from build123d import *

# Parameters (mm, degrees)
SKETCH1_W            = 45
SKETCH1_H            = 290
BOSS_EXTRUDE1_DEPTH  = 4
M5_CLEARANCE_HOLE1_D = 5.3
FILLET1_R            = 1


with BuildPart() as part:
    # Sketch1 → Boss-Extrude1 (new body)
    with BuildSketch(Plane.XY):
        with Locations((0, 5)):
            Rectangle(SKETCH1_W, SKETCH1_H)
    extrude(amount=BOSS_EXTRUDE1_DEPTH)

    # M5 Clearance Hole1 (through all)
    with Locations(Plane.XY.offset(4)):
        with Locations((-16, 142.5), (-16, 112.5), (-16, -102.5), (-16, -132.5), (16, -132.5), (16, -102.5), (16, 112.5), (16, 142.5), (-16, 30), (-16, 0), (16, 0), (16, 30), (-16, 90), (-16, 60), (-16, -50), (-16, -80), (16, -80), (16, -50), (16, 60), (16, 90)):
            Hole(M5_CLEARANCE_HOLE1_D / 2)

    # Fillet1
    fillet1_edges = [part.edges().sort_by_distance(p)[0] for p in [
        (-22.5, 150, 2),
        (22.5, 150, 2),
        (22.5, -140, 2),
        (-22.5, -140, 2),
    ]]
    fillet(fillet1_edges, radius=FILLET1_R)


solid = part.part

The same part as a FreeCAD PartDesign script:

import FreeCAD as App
import Part
import Sketcher
Q = App.Units.Quantity


def edges_at(feature, points):
    """Names of the edges that pass closest to the given points."""
    edges = feature.Shape.Edges
    near = lambda p: min(range(len(edges)), key=lambda i: edges[i].distToShape(Part.Vertex(*p))[0])
    return sorted({f"Edge{near(p) + 1}" for p in points})


def add_polygon(sketch, points):
    """Adds a closed chain of lines whose ends are joined by coincident constraints."""
    first, n = sketch.GeometryCount, len(points)
    for a, b in zip(points, points[1:] + points[:1]):
        sketch.addGeometry(Part.LineSegment(App.Vector(*a, 0), App.Vector(*b, 0)), False)
    for i in range(n):
        sketch.addConstraint(Sketcher.Constraint("Coincident", first + i, 2, first + (i + 1) % n, 1))

doc = App.newDocument("Part")
body = doc.addObject("PartDesign::Body", "Body")

sketch1 = doc.addObject("Sketcher::SketchObject", "Sketch")
body.addObject(sketch1)
sketch1.AttachmentSupport = (doc.XY_Plane, [""])
sketch1.MapMode = "FlatFace"
add_polygon(sketch1, [(-22, 150), (-22, -140), (22, -140), (22, 150)])
sketch1.addConstraint([
    Sketcher.Constraint("Vertical", 0),
    Sketcher.Constraint("Horizontal", 1),
    Sketcher.Constraint("Vertical", 2),
    Sketcher.Constraint("Horizontal", 3),
    Sketcher.Constraint("DistanceX", 1, 1, 1, 2, Q("45 mm")),
    Sketcher.Constraint("DistanceY", 0, 2, 0, 1, Q("290 mm")),
    Sketcher.Constraint("DistanceY", 0, 2, -1, 1, Q("140 mm")),
    Sketcher.Constraint("DistanceX", 0, 2, -1, 1, Q("22.5 mm")),
])
pad1 = doc.addObject("PartDesign::Pad", "Pad")
body.addObject(pad1)
pad1.Profile = sketch1
pad1.Length = 4

sketch2 = doc.addObject("Sketcher::SketchObject", "Sketch001")
body.addObject(sketch2)
sketch2.AttachmentSupport = (doc.XY_Plane, [""])
sketch2.MapMode = "FlatFace"
sketch2.AttachmentOffset = App.Placement(App.Vector(0, 0, 4), App.Rotation())
sketch2.addGeometry([
    Part.Circle(App.Vector(-16, 142.5, 0), App.Vector(0, 0, 1), 2.6),
    Part.Circle(App.Vector(-16, 112.5, 0), App.Vector(0, 0, 1), 2.6),
    Part.Circle(App.Vector(-16, -102.5, 0), App.Vector(0, 0, 1), 2.6),
    Part.Circle(App.Vector(-16, -132.5, 0), App.Vector(0, 0, 1), 2.6),
    Part.Circle(App.Vector(16, -132.5, 0), App.Vector(0, 0, 1), 2.6),
    Part.Circle(App.Vector(16, -102.5, 0), App.Vector(0, 0, 1), 2.6),
    Part.Circle(App.Vector(16, 112.5, 0), App.Vector(0, 0, 1), 2.6),
    Part.Circle(App.Vector(16, 142.5, 0), App.Vector(0, 0, 1), 2.6),
    Part.Circle(App.Vector(-16, 30, 0), App.Vector(0, 0, 1), 2.6),
    Part.Circle(App.Vector(-16, 0, 0), App.Vector(0, 0, 1), 2.6),
    Part.Circle(App.Vector(16, 0, 0), App.Vector(0, 0, 1), 2.6),
    Part.Circle(App.Vector(16, 30, 0), App.Vector(0, 0, 1), 2.6),
    Part.Circle(App.Vector(-16, 90, 0), App.Vector(0, 0, 1), 2.6),
    Part.Circle(App.Vector(-16, 60, 0), App.Vector(0, 0, 1), 2.6),
    Part.Circle(App.Vector(-16, -50, 0), App.Vector(0, 0, 1), 2.6),
    Part.Circle(App.Vector(-16, -80, 0), App.Vector(0, 0, 1), 2.6),
    Part.Circle(App.Vector(16, -80, 0), App.Vector(0, 0, 1), 2.6),
    Part.Circle(App.Vector(16, -50, 0), App.Vector(0, 0, 1), 2.6),
    Part.Circle(App.Vector(16, 60, 0), App.Vector(0, 0, 1), 2.6),
    Part.Circle(App.Vector(16, 90, 0), App.Vector(0, 0, 1), 2.6),
], False)
sketch2.addConstraint([
    Sketcher.Constraint("Equal", 0, 1),
    Sketcher.Constraint("Equal", 1, 2),
    Sketcher.Constraint("Equal", 2, 3),
    Sketcher.Constraint("Equal", 3, 4),
    Sketcher.Constraint("Equal", 4, 5),
    Sketcher.Constraint("Equal", 5, 6),
    Sketcher.Constraint("Equal", 6, 7),
    Sketcher.Constraint("Equal", 7, 8),
    Sketcher.Constraint("Equal", 8, 9),
    Sketcher.Constraint("Equal", 9, 10),
    Sketcher.Constraint("Equal", 10, 11),
    Sketcher.Constraint("Equal", 11, 12),
    Sketcher.Constraint("Equal", 12, 13),
    Sketcher.Constraint("Equal", 13, 14),
    Sketcher.Constraint("Equal", 14, 15),
    Sketcher.Constraint("Equal", 15, 16),
    Sketcher.Constraint("Equal", 16, 17),
    Sketcher.Constraint("Equal", 17, 18),
    Sketcher.Constraint("Equal", 18, 19),
    Sketcher.Constraint("Symmetric", 9, 3, 10, 3, -1, 1),
    Sketcher.Constraint("Symmetric", 3, 3, 4, 3, -2),
    Sketcher.Constraint("Symmetric", 2, 3, 5, 3, -2),
    Sketcher.Constraint("Symmetric", 1, 3, 6, 3, -2),
    Sketcher.Constraint("Symmetric", 0, 3, 7, 3, -2),
    Sketcher.Constraint("Symmetric", 8, 3, 11, 3, -2),
    Sketcher.Constraint("Symmetric", 15, 3, 16, 3, -2),
    Sketcher.Constraint("Symmetric", 14, 3, 17, 3, -2),
    Sketcher.Constraint("Symmetric", 13, 3, 18, 3, -2),
    Sketcher.Constraint("Symmetric", 12, 3, 19, 3, -2),
    Sketcher.Constraint("PointOnObject", 9, 3, -1),
    Sketcher.Constraint("Vertical", 0, 3, 1, 3),
    Sketcher.Constraint("Vertical", 1, 3, 2, 3),
    Sketcher.Constraint("Vertical", 2, 3, 3, 3),
    Sketcher.Constraint("Vertical", 3, 3, 8, 3),
    Sketcher.Constraint("Vertical", 8, 3, 9, 3),
    Sketcher.Constraint("Vertical", 9, 3, 12, 3),
    Sketcher.Constraint("Vertical", 12, 3, 13, 3),
    Sketcher.Constraint("Vertical", 13, 3, 14, 3),
    Sketcher.Constraint("Vertical", 14, 3, 15, 3),
    Sketcher.Constraint("Diameter", 0, Q("5.3 mm")),
    Sketcher.Constraint("DistanceX", 0, 3, -1, 1, Q("16 mm")),
    Sketcher.Constraint("DistanceY", -1, 1, 8, 3, Q("30 mm")),
    Sketcher.Constraint("DistanceY", -1, 1, 12, 3, Q("90 mm")),
    Sketcher.Constraint("DistanceY", -1, 1, 13, 3, Q("60 mm")),
    Sketcher.Constraint("DistanceY", 14, 3, -1, 1, Q("50 mm")),
    Sketcher.Constraint("DistanceY", 15, 3, -1, 1, Q("80 mm")),
    Sketcher.Constraint("DistanceY", 1, 3, 0, 3, Q("30 mm")),
    Sketcher.Constraint("DistanceY", 2, 3, 1, 3, Q("215 mm")),
    Sketcher.Constraint("DistanceY", 3, 3, 2, 3, Q("30 mm")),
    Sketcher.Constraint("DistanceY", -1, 1, 0, 3, Q("142.5 mm")),
])
doc.recompute()
hole = doc.addObject("PartDesign::Hole", "Hole")
body.addObject(hole)
hole.Profile = sketch2
hole.ThreadType = "None"
hole.Diameter = 5.3
hole.DepthType = "ThroughAll"
doc.recompute()

fillet = doc.addObject("PartDesign::Fillet", "Fillet")
body.addObject(fillet)
fillet.Base = (hole, edges_at(hole, [
    (-22.5, 150, 2),
    (22.5, 150, 2),
    (22.5, -140, 2),
    (-22.5, -140, 2),
]))
fillet.Radius = 1

doc.recompute()
